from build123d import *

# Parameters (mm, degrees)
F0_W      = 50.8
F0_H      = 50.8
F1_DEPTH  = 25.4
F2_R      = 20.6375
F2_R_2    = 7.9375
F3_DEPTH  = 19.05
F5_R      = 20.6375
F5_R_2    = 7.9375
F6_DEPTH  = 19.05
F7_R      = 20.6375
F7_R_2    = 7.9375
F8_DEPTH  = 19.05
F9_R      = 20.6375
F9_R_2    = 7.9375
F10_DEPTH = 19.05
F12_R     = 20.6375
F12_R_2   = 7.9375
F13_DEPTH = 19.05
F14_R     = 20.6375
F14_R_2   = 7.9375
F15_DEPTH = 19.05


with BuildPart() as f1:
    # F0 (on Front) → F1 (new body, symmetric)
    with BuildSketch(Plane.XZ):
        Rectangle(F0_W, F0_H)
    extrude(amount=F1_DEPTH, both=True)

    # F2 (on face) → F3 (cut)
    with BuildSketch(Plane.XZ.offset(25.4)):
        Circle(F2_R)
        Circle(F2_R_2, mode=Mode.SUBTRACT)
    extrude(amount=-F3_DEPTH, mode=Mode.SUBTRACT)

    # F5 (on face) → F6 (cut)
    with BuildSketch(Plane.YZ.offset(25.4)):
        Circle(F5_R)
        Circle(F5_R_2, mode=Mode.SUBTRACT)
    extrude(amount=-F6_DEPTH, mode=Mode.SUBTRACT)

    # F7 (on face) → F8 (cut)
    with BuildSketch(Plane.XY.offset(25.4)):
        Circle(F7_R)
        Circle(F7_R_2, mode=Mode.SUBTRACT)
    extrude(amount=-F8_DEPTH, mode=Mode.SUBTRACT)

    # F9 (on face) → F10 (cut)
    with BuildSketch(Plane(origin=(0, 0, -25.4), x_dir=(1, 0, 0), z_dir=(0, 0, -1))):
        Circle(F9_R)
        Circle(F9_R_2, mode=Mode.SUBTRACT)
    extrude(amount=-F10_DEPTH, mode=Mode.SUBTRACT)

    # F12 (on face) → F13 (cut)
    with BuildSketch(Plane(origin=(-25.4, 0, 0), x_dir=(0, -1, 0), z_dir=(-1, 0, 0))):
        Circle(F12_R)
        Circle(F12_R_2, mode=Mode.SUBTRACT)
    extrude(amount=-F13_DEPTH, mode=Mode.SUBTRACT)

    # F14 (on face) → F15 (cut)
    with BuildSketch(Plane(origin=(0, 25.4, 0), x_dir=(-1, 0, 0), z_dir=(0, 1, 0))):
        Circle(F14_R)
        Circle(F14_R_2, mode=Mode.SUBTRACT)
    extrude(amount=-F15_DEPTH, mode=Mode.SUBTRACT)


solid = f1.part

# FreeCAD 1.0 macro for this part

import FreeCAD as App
import Part
import Sketcher

V = App.Vector
Q = App.Units.Quantity

doc = App.newDocument("Part")
params = doc.addObject("Spreadsheet::Sheet", "Params")
for row, (alias, value) in enumerate([
    ("sketch1_width", "2 in"),
    ("pad1_length", "2 in"),
    ("sketch2_diameter", "1.625 in"),
    ("sketch2_diameter2", "0.625 in"),
    ("pocket1_length", "0.75 in"),
    ("sketch3_diameter", "1.625 in"),
    ("sketch3_diameter2", "0.625 in"),
    ("pocket2_length", "0.75 in"),
    ("sketch4_diameter", "1.625 in"),
    ("sketch4_diameter2", "0.625 in"),
    ("pocket3_length", "0.75 in"),
    ("sketch5_diameter", "1.625 in"),
    ("sketch5_diameter2", "0.625 in"),
    ("pocket4_length", "0.75 in"),
    ("sketch6_diameter", "1.625 in"),
    ("sketch6_diameter2", "0.625 in"),
    ("pocket5_length", "0.75 in"),
    ("sketch7_diameter", "1.625 in"),
    ("sketch7_diameter2", "0.625 in"),
    ("pocket6_length", "0.75 in"),
], start=1):
    params.set(f"A{row}", alias)
    params.set(f"B{row}", "=" + value)
    params.setAlias(f"B{row}", alias)

body = doc.addObject("PartDesign::Body", "Body")
body.AllowCompound = True

# Sketch on XZ plane
sketch1 = body.newObject("Sketcher::SketchObject", "Sketch")
sketch1.AttachmentSupport = (doc.getObject("XZ_Plane"), [""])
sketch1.MapMode = "FlatFace"
sketch1.addGeometry([
    Part.LineSegment(V(-25, 25, 0), V(-25, -25, 0)),
    Part.LineSegment(V(-25, -25, 0), V(25, -25, 0)),
    Part.LineSegment(V(25, -25, 0), V(25, 25, 0)),
    Part.LineSegment(V(25, 25, 0), V(-25, 25, 0)),
], False)
sketch1.addConstraint([
    Sketcher.Constraint("Coincident", 0, 2, 1, 1),
    Sketcher.Constraint("Coincident", 1, 2, 2, 1),
    Sketcher.Constraint("Coincident", 2, 2, 3, 1),
    Sketcher.Constraint("Coincident", 3, 2, 0, 1),
    Sketcher.Constraint("Vertical", 0),
    Sketcher.Constraint("Horizontal", 1),
    Sketcher.Constraint("Vertical", 2),
    Sketcher.Constraint("Horizontal", 3),
    Sketcher.Constraint("Symmetric", 0, 2, 2, 2, -1, 1),
    Sketcher.Constraint("Equal", 3, 0),
    Sketcher.Constraint("DistanceX", 1, 1, 1, 2, Q("2 in")),
])
sketch1.setExpression("Constraints[10]", "Params.sketch1_width")
pad1 = body.newObject("PartDesign::Pad", "Pad")
pad1.Profile = sketch1
pad1.setExpression("Length", "Params.pad1_length")
pad1.Midplane = True

# Sketch on XZ plane
sketch2 = body.newObject("Sketcher::SketchObject", "Sketch001")
sketch2.AttachmentSupport = (doc.getObject("XZ_Plane"), [""])
sketch2.MapMode = "FlatFace"
sketch2.AttachmentOffset = App.Placement(V(0, 0, 1 * 25.4), App.Rotation())
sketch2.addGeometry([
    Part.Circle(V(0, 0, 0), V(0, 0, 1), 21),
    Part.Circle(V(0, 0, 0), V(0, 0, 1), 8),
], False)
sketch2.addConstraint([
    Sketcher.Constraint("Coincident", 0, 3, -1, 1),
    Sketcher.Constraint("Coincident", 1, 3, -1, 1),
    Sketcher.Constraint("Diameter", 0, Q("1.625 in")),
    Sketcher.Constraint("Diameter", 1, Q("0.625 in")),
])
sketch2.setExpression("Constraints[2]", "Params.sketch2_diameter")
sketch2.setExpression("Constraints[3]", "Params.sketch2_diameter2")
pocket1 = body.newObject("PartDesign::Pocket", "Pocket")
pocket1.Profile = sketch2
pocket1.setExpression("Length", "Params.pocket1_length")

# Sketch on YZ plane
sketch3 = body.newObject("Sketcher::SketchObject", "Sketch002")
sketch3.AttachmentSupport = (doc.getObject("YZ_Plane"), [""])
sketch3.MapMode = "FlatFace"
sketch3.AttachmentOffset = App.Placement(V(0, 0, 1 * 25.4), App.Rotation())
sketch3.addGeometry([
    Part.Circle(V(0, 0, 0), V(0, 0, 1), 21),
    Part.Circle(V(0, 0, 0), V(0, 0, 1), 8),
], False)
sketch3.addConstraint([
    Sketcher.Constraint("Coincident", 0, 3, -1, 1),
    Sketcher.Constraint("Coincident", 1, 3, -1, 1),
    Sketcher.Constraint("Diameter", 0, Q("1.625 in")),
    Sketcher.Constraint("Diameter", 1, Q("0.625 in")),
])
sketch3.setExpression("Constraints[2]", "Params.sketch3_diameter")
sketch3.setExpression("Constraints[3]", "Params.sketch3_diameter2")
pocket2 = body.newObject("PartDesign::Pocket", "Pocket001")
pocket2.Profile = sketch3
pocket2.setExpression("Length", "Params.pocket2_length")

# Sketch on XY plane
sketch4 = body.newObject("Sketcher::SketchObject", "Sketch003")
sketch4.AttachmentSupport = (doc.getObject("XY_Plane"), [""])
sketch4.MapMode = "FlatFace"
sketch4.AttachmentOffset = App.Placement(V(0, 0, 1 * 25.4), App.Rotation())
sketch4.addGeometry([
    Part.Circle(V(0, 0, 0), V(0, 0, 1), 21),
    Part.Circle(V(0, 0, 0), V(0, 0, 1), 8),
], False)
sketch4.addConstraint([
    Sketcher.Constraint("Coincident", 0, 3, -1, 1),
    Sketcher.Constraint("Coincident", 1, 3, -1, 1),
    Sketcher.Constraint("Diameter", 0, Q("1.625 in")),
    Sketcher.Constraint("Diameter", 1, Q("0.625 in")),
])
sketch4.setExpression("Constraints[2]", "Params.sketch4_diameter")
sketch4.setExpression("Constraints[3]", "Params.sketch4_diameter2")
pocket3 = body.newObject("PartDesign::Pocket", "Pocket002")
pocket3.Profile = sketch4
pocket3.setExpression("Length", "Params.pocket3_length")

# Sketch on XY plane
sketch5 = body.newObject("Sketcher::SketchObject", "Sketch004")
sketch5.AttachmentSupport = (doc.getObject("XY_Plane"), [""])
sketch5.MapMode = "FlatFace"
sketch5.AttachmentOffset = App.Placement(V(0, 0, -1 * 25.4), App.Rotation())
sketch5.addGeometry([
    Part.Circle(V(0, 0, 0), V(0, 0, 1), 21),
    Part.Circle(V(0, 0, 0), V(0, 0, 1), 8),
], False)
sketch5.addConstraint([
    Sketcher.Constraint("Coincident", 0, 3, -1, 1),
    Sketcher.Constraint("Coincident", 1, 3, -1, 1),
    Sketcher.Constraint("Diameter", 0, Q("1.625 in")),
    Sketcher.Constraint("Diameter", 1, Q("0.625 in")),
])
sketch5.setExpression("Constraints[2]", "Params.sketch5_diameter")
sketch5.setExpression("Constraints[3]", "Params.sketch5_diameter2")
pocket4 = body.newObject("PartDesign::Pocket", "Pocket003")
pocket4.Profile = sketch5
pocket4.setExpression("Length", "Params.pocket4_length")
pocket4.Reversed = True

# Sketch on YZ plane
sketch6 = body.newObject("Sketcher::SketchObject", "Sketch005")
sketch6.AttachmentSupport = (doc.getObject("YZ_Plane"), [""])
sketch6.MapMode = "FlatFace"
sketch6.AttachmentOffset = App.Placement(V(0, 0, -1 * 25.4), App.Rotation())
sketch6.addGeometry([
    Part.Circle(V(0, 0, 0), V(0, 0, 1), 21),
    Part.Circle(V(0, 0, 0), V(0, 0, 1), 8),
], False)
sketch6.addConstraint([
    Sketcher.Constraint("Coincident", 0, 3, -1, 1),
    Sketcher.Constraint("Coincident", 1, 3, -1, 1),
    Sketcher.Constraint("Diameter", 0, Q("1.625 in")),
    Sketcher.Constraint("Diameter", 1, Q("0.625 in")),
])
sketch6.setExpression("Constraints[2]", "Params.sketch6_diameter")
sketch6.setExpression("Constraints[3]", "Params.sketch6_diameter2")
pocket5 = body.newObject("PartDesign::Pocket", "Pocket004")
pocket5.Profile = sketch6
pocket5.setExpression("Length", "Params.pocket5_length")
pocket5.Reversed = True

# Sketch on XZ plane
sketch7 = body.newObject("Sketcher::SketchObject", "Sketch006")
sketch7.AttachmentSupport = (doc.getObject("XZ_Plane"), [""])
sketch7.MapMode = "FlatFace"
sketch7.AttachmentOffset = App.Placement(V(0, 0, -1 * 25.4), App.Rotation())
sketch7.addGeometry([
    Part.Circle(V(0, 0, 0), V(0, 0, 1), 21),
    Part.Circle(V(0, 0, 0), V(0, 0, 1), 8),
], False)
sketch7.addConstraint([
    Sketcher.Constraint("Coincident", 0, 3, -1, 1),
    Sketcher.Constraint("Coincident", 1, 3, -1, 1),
    Sketcher.Constraint("Diameter", 0, Q("1.625 in")),
    Sketcher.Constraint("Diameter", 1, Q("0.625 in")),
])
sketch7.setExpression("Constraints[2]", "Params.sketch7_diameter")
sketch7.setExpression("Constraints[3]", "Params.sketch7_diameter2")
pocket6 = body.newObject("PartDesign::Pocket", "Pocket005")
pocket6.Profile = sketch7
pocket6.setExpression("Length", "Params.pocket6_length")
pocket6.Reversed = True

doc.recompute()
